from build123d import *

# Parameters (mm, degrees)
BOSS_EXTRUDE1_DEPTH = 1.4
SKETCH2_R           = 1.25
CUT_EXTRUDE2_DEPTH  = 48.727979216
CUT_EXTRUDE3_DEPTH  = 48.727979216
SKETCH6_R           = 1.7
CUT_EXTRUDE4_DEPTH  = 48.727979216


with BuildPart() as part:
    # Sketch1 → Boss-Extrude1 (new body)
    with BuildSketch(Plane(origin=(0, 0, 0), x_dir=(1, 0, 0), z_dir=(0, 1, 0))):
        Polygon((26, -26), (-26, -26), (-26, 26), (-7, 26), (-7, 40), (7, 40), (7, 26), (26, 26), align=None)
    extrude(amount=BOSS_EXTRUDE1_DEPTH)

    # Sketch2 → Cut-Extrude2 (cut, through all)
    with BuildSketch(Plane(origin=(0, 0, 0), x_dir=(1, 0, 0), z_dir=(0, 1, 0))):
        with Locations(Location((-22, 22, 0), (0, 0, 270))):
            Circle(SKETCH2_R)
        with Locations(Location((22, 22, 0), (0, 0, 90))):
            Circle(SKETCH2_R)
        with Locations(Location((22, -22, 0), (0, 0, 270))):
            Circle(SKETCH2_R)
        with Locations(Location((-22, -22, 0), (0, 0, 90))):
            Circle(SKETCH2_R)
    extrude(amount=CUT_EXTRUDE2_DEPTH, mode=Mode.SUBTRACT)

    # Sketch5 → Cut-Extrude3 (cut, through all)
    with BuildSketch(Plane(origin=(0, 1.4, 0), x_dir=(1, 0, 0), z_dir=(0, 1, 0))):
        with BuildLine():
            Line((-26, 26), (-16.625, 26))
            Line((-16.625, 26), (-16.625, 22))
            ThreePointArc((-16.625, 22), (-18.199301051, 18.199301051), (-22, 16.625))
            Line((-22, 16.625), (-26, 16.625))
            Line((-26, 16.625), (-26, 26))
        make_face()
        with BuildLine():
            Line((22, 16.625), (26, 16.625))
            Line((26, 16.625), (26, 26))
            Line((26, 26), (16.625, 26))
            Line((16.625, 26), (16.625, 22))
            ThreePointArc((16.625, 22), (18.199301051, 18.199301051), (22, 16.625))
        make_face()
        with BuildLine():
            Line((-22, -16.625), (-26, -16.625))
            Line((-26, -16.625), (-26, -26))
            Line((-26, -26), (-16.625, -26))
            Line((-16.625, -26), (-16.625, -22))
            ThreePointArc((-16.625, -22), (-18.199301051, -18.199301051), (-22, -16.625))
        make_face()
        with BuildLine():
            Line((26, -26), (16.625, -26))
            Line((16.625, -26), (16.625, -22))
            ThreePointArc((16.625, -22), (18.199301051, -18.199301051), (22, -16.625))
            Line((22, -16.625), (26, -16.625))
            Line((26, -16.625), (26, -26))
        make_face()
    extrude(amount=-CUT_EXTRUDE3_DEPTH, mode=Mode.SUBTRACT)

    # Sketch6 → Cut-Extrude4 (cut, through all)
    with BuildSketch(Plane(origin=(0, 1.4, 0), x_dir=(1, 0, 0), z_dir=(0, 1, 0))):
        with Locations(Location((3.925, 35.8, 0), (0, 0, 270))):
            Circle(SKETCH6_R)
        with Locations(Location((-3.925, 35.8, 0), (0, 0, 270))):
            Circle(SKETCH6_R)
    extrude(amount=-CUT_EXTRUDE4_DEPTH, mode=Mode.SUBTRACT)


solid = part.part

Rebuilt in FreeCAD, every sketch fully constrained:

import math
import FreeCAD as App
import Part
import Sketcher
from FreeCAD import Vector


def add_polygon(sketch, points):
    """Adds a closed chain of lines whose ends are joined by coincident constraints."""
    first, n = sketch.GeometryCount, len(points)
    for a, b in zip(points, points[1:] + points[:1]):
        sketch.addGeometry(Part.LineSegment(App.Vector(*a, 0), App.Vector(*b, 0)), False)
    for i in range(n):
        sketch.addConstraint(Sketcher.Constraint("Coincident", first + i, 2, first + (i + 1) % n, 1))

doc = App.newDocument("Part")
params = doc.addObject("Spreadsheet::Sheet", "Params")
for row, (alias, value) in enumerate([
    ("sketch1_width", "52 mm"),
    ("sketch1_width2", "19 mm"),
    ("pad1_length", "1.4 mm"),
    ("sketch2_diameter", "2.5 mm"),
    ("sketch3_width", "4 mm"),
    ("sketch4_diameter", "3.4 mm"),
], start=1):
    params.set(f"A{row}", alias)
    params.set(f"B{row}", "=" + value)
    params.setAlias(f"B{row}", alias)

body = doc.addObject("PartDesign::Body", "Body")

sketch1 = body.newObject("Sketcher::SketchObject", "Sketch")
sketch1.AttachmentSupport = (doc.getObject("XZ_Plane"), [""])
sketch1.MapMode = "FlatFace"
add_polygon(sketch1, [(-26, 26), (26, 26), (26, -26), (7, -26), (7, -40), (-7, -40), (-7, -26), (-26, -26)])
sketch1.addConstraint([
    Sketcher.Constraint("Horizontal", 0),
    Sketcher.Constraint("Vertical", 1),
    Sketcher.Constraint("Horizontal", 2),
    Sketcher.Constraint("Vertical", 3),
    Sketcher.Constraint("Horizontal", 4),
    Sketcher.Constraint("Vertical", 5),
    Sketcher.Constraint("Horizontal", 6),
    Sketcher.Constraint("Vertical", 7),
    Sketcher.Constraint("Symmetric", 0, 2, 6, 2, -1, 1),
    Sketcher.Constraint("Symmetric", 2, 2, 5, 2, -2),
    Sketcher.Constraint("Equal", 0, 1),
    Sketcher.Constraint("Equal", 4, 3),
    Sketcher.Constraint("DistanceX", 0, 1, 0, 2, 52.0),
    Sketcher.Constraint("DistanceX", 2, 2, 2, 1, 19.0),
])
sketch1.setExpression("Constraints[20]", "Params.sketch1_width")
sketch1.setExpression("Constraints[21]", "Params.sketch1_width2")
pad1 = body.newObject("PartDesign::Pad", "Pad")
pad1.Profile = sketch1
pad1.setExpression("Length", "Params.pad1_length")
pad1.Reversed = True

sketch2 = body.newObject("Sketcher::SketchObject", "Sketch001")
sketch2.AttachmentSupport = (doc.getObject("XZ_Plane"), [""])
sketch2.MapMode = "FlatFace"
sketch2.addGeometry([
    Part.Circle(Vector(-22, -22, 0), Vector(0, 0, 1), 1.2),
    Part.Circle(Vector(22, -22, 0), Vector(0, 0, 1), 1.2),
    Part.Circle(Vector(22, 22, 0), Vector(0, 0, 1), 1.2),
    Part.Circle(Vector(-22, 22, 0), Vector(0, 0, 1), 1.2),
], False)
sketch2.addConstraint([
    Sketcher.Constraint("Equal", 0, 1),
    Sketcher.Constraint("Equal", 1, 2),
    Sketcher.Constraint("Equal", 2, 3),
    Sketcher.Constraint("Symmetric", 0, 3, 2, 3, -1, 1),
    Sketcher.Constraint("Symmetric", 1, 3, 3, 3, -1, 1),
    Sketcher.Constraint("Symmetric", 0, 3, 1, 3, -2),
    Sketcher.Constraint("Diameter", 0, 2.5),
    Sketcher.Constraint("DistanceX", 0, 3, -1, 1, 22.0),
    Sketcher.Constraint("DistanceY", 0, 3, -1, 1, 22.0),
])
sketch2.setExpression("Constraints[6]", "Params.sketch2_diameter")
pocket1 = body.newObject("PartDesign::Pocket", "Pocket")
pocket1.Profile = sketch2
pocket1.Type = "ThroughAll"

sketch3 = body.newObject("Sketcher::SketchObject", "Sketch002")
sketch3.AttachmentSupport = (doc.getObject("XZ_Plane"), [""])
sketch3.MapMode = "FlatFace"
sketch3.AttachmentOffset = App.Placement(Vector(0, 0, -1.4), App.Rotation())
sketch3.addGeometry([
    Part.LineSegment(Vector(-16.6, -26, 0), Vector(-26, -26, 0)),
    Part.LineSegment(Vector(-26, -26, 0), Vector(-26, -16.6, 0)),
    Part.LineSegment(Vector(-26, -16.6, 0), Vector(-22, -16.6, 0)),
    Part.ArcOfCircle(Part.Circle(Vector(-22, -22, 0), Vector(0, 0, 1), 5.4), math.radians(0), math.radians(90)),
    Part.LineSegment(Vector(-16.6, -22, 0), Vector(-16.6, -26, 0)),
    Part.LineSegment(Vector(22, -16.6, 0), Vector(26, -16.6, 0)),
    Part.LineSegment(Vector(26, -16.6, 0), Vector(26, -26, 0)),
    Part.LineSegment(Vector(26, -26, 0), Vector(16.6, -26, 0)),
    Part.LineSegment(Vector(16.6, -26, 0), Vector(16.6, -22, 0)),
    Part.ArcOfCircle(Part.Circle(Vector(22, -22, 0), Vector(0, 0, 1), 5.4), math.radians(90), math.radians(180)),
    Part.LineSegment(Vector(-22, 16.6, 0), Vector(-26, 16.6, 0)),
    Part.LineSegment(Vector(-26, 16.6, 0), Vector(-26, 26, 0)),
    Part.LineSegment(Vector(-26, 26, 0), Vector(-16.6, 26, 0)),
    Part.LineSegment(Vector(-16.6, 26, 0), Vector(-16.6, 22, 0)),
    Part.ArcOfCircle(Part.Circle(Vector(-22, 22, 0), Vector(0, 0, 1), 5.4), math.radians(-90), math.radians(0)),
    Part.LineSegment(Vector(16.6, 26, 0), Vector(26, 26, 0)),
    Part.LineSegment(Vector(26, 26, 0), Vector(26, 16.6, 0)),
    Part.LineSegment(Vector(26, 16.6, 0), Vector(22, 16.6, 0)),
    Part.ArcOfCircle(Part.Circle(Vector(22, 22, 0), Vector(0, 0, 1), 5.4), math.radians(180), math.radians(270)),
    Part.LineSegment(Vector(16.6, 22, 0), Vector(16.6, 26, 0)),
], False)
sketch3.addConstraint([
    Sketcher.Constraint("Coincident", 0, 2, 1, 1),
    Sketcher.Constraint("Coincident", 1, 2, 2, 1),
    Sketcher.Constraint("Tangent", 2, 2, 3, 2),
    Sketcher.Constraint("Tangent", 3, 1, 4, 1),
    Sketcher.Constraint("Coincident", 4, 2, 0, 1),
    Sketcher.Constraint("Coincident", 5, 2, 6, 1),
    Sketcher.Constraint("Coincident", 6, 2, 7, 1),
    Sketcher.Constraint("Coincident", 7, 2, 8, 1),
    Sketcher.Constraint("Tangent", 8, 2, 9, 2),
    Sketcher.Constraint("Tangent", 9, 1, 5, 1),
    Sketcher.Constraint("Coincident", 10, 2, 11, 1),
    Sketcher.Constraint("Coincident", 11, 2, 12, 1),
    Sketcher.Constraint("Coincident", 12, 2, 13, 1),
    Sketcher.Constraint("Tangent", 13, 2, 14, 2),
    Sketcher.Constraint("Tangent", 14, 1, 10, 1),
    Sketcher.Constraint("Coincident", 15, 2, 16, 1),
    Sketcher.Constraint("Coincident", 16, 2, 17, 1),
    Sketcher.Constraint("Tangent", 17, 2, 18, 2),
    Sketcher.Constraint("Tangent", 18, 1, 19, 1),
    Sketcher.Constraint("Coincident", 19, 2, 15, 1),
    Sketcher.Constraint("Horizontal", 0),
    Sketcher.Constraint("Vertical", 1),
    Sketcher.Constraint("Horizontal", 2),
    Sketcher.Constraint("Vertical", 4),
    Sketcher.Constraint("Horizontal", 5),
    Sketcher.Constraint("Vertical", 6),
    Sketcher.Constraint("Horizontal", 7),
    Sketcher.Constraint("Vertical", 8),
    Sketcher.Constraint("Horizontal", 10),
    Sketcher.Constraint("Vertical", 11),
    Sketcher.Constraint("Horizontal", 12),
    Sketcher.Constraint("Vertical", 13),
    Sketcher.Constraint("Horizontal", 15),
    Sketcher.Constraint("Vertical", 16),
    Sketcher.Constraint("Horizontal", 17),
    Sketcher.Constraint("Vertical", 19),
    Sketcher.Constraint("Equal", 3, 9),
    Sketcher.Constraint("Equal", 9, 14),
    Sketcher.Constraint("Equal", 14, 18),
    Sketcher.Constraint("Symmetric", 9, 3, 14, 3, -1, 1),
    Sketcher.Constraint("Symmetric", 3, 3, 18, 3, -1, 1),
    Sketcher.Constraint("Symmetric", 6, 2, 11, 2, -1, 1),
    Sketcher.Constraint("Symmetric", 0, 2, 15, 2, -1, 1),
    Sketcher.Constraint("Symmetric", 3, 3, 9, 3, -2),
    Sketcher.Constraint("Symmetric", 0, 2, 6, 2, -2),
    Sketcher.Constraint("Equal", 15, 1),
    Sketcher.Constraint("DistanceX", 2, 1, 2, 2, 4.0),
    Sketcher.Constraint("DistanceX", 3, 3, -1, 1, 22.0),
    Sketcher.Constraint("DistanceY", 3, 3, -1, 1, 22.0),
    Sketcher.Constraint("Radius", 3, 5.375),
])
sketch3.setExpression("Constraints[46]", "Params.sketch3_width")
pocket2 = body.newObject("PartDesign::Pocket", "Pocket001")
pocket2.Profile = sketch3
pocket2.Type = "ThroughAll"
pocket2.Reversed = True

sketch4 = body.newObject("Sketcher::SketchObject", "Sketch003")
sketch4.AttachmentSupport = (doc.getObject("XZ_Plane"), [""])
sketch4.MapMode = "FlatFace"
sketch4.AttachmentOffset = App.Placement(Vector(0, 0, -1.4), App.Rotation())
sketch4.addGeometry([
    Part.Circle(Vector(3.9, -35.8, 0), Vector(0, 0, 1), 1.7),
    Part.Circle(Vector(-3.9, -35.8, 0), Vector(0, 0, 1), 1.7),
], False)
sketch4.addConstraint([
    Sketcher.Constraint("Equal", 0, 1),
    Sketcher.Constraint("Symmetric", 0, 3, 1, 3, -2),
    Sketcher.Constraint("Diameter", 0, 3.4),
    Sketcher.Constraint("DistanceY", 0, 3, -1, 1, 35.8),
    Sketcher.Constraint("DistanceX", 1, 3, 0, 3, 7.85),
])
sketch4.setExpression("Constraints[2]", "Params.sketch4_diameter")
pocket3 = body.newObject("PartDesign::Pocket", "Pocket002")
pocket3.Profile = sketch4
pocket3.Type = "ThroughAll"
pocket3.Reversed = True

doc.recompute()
